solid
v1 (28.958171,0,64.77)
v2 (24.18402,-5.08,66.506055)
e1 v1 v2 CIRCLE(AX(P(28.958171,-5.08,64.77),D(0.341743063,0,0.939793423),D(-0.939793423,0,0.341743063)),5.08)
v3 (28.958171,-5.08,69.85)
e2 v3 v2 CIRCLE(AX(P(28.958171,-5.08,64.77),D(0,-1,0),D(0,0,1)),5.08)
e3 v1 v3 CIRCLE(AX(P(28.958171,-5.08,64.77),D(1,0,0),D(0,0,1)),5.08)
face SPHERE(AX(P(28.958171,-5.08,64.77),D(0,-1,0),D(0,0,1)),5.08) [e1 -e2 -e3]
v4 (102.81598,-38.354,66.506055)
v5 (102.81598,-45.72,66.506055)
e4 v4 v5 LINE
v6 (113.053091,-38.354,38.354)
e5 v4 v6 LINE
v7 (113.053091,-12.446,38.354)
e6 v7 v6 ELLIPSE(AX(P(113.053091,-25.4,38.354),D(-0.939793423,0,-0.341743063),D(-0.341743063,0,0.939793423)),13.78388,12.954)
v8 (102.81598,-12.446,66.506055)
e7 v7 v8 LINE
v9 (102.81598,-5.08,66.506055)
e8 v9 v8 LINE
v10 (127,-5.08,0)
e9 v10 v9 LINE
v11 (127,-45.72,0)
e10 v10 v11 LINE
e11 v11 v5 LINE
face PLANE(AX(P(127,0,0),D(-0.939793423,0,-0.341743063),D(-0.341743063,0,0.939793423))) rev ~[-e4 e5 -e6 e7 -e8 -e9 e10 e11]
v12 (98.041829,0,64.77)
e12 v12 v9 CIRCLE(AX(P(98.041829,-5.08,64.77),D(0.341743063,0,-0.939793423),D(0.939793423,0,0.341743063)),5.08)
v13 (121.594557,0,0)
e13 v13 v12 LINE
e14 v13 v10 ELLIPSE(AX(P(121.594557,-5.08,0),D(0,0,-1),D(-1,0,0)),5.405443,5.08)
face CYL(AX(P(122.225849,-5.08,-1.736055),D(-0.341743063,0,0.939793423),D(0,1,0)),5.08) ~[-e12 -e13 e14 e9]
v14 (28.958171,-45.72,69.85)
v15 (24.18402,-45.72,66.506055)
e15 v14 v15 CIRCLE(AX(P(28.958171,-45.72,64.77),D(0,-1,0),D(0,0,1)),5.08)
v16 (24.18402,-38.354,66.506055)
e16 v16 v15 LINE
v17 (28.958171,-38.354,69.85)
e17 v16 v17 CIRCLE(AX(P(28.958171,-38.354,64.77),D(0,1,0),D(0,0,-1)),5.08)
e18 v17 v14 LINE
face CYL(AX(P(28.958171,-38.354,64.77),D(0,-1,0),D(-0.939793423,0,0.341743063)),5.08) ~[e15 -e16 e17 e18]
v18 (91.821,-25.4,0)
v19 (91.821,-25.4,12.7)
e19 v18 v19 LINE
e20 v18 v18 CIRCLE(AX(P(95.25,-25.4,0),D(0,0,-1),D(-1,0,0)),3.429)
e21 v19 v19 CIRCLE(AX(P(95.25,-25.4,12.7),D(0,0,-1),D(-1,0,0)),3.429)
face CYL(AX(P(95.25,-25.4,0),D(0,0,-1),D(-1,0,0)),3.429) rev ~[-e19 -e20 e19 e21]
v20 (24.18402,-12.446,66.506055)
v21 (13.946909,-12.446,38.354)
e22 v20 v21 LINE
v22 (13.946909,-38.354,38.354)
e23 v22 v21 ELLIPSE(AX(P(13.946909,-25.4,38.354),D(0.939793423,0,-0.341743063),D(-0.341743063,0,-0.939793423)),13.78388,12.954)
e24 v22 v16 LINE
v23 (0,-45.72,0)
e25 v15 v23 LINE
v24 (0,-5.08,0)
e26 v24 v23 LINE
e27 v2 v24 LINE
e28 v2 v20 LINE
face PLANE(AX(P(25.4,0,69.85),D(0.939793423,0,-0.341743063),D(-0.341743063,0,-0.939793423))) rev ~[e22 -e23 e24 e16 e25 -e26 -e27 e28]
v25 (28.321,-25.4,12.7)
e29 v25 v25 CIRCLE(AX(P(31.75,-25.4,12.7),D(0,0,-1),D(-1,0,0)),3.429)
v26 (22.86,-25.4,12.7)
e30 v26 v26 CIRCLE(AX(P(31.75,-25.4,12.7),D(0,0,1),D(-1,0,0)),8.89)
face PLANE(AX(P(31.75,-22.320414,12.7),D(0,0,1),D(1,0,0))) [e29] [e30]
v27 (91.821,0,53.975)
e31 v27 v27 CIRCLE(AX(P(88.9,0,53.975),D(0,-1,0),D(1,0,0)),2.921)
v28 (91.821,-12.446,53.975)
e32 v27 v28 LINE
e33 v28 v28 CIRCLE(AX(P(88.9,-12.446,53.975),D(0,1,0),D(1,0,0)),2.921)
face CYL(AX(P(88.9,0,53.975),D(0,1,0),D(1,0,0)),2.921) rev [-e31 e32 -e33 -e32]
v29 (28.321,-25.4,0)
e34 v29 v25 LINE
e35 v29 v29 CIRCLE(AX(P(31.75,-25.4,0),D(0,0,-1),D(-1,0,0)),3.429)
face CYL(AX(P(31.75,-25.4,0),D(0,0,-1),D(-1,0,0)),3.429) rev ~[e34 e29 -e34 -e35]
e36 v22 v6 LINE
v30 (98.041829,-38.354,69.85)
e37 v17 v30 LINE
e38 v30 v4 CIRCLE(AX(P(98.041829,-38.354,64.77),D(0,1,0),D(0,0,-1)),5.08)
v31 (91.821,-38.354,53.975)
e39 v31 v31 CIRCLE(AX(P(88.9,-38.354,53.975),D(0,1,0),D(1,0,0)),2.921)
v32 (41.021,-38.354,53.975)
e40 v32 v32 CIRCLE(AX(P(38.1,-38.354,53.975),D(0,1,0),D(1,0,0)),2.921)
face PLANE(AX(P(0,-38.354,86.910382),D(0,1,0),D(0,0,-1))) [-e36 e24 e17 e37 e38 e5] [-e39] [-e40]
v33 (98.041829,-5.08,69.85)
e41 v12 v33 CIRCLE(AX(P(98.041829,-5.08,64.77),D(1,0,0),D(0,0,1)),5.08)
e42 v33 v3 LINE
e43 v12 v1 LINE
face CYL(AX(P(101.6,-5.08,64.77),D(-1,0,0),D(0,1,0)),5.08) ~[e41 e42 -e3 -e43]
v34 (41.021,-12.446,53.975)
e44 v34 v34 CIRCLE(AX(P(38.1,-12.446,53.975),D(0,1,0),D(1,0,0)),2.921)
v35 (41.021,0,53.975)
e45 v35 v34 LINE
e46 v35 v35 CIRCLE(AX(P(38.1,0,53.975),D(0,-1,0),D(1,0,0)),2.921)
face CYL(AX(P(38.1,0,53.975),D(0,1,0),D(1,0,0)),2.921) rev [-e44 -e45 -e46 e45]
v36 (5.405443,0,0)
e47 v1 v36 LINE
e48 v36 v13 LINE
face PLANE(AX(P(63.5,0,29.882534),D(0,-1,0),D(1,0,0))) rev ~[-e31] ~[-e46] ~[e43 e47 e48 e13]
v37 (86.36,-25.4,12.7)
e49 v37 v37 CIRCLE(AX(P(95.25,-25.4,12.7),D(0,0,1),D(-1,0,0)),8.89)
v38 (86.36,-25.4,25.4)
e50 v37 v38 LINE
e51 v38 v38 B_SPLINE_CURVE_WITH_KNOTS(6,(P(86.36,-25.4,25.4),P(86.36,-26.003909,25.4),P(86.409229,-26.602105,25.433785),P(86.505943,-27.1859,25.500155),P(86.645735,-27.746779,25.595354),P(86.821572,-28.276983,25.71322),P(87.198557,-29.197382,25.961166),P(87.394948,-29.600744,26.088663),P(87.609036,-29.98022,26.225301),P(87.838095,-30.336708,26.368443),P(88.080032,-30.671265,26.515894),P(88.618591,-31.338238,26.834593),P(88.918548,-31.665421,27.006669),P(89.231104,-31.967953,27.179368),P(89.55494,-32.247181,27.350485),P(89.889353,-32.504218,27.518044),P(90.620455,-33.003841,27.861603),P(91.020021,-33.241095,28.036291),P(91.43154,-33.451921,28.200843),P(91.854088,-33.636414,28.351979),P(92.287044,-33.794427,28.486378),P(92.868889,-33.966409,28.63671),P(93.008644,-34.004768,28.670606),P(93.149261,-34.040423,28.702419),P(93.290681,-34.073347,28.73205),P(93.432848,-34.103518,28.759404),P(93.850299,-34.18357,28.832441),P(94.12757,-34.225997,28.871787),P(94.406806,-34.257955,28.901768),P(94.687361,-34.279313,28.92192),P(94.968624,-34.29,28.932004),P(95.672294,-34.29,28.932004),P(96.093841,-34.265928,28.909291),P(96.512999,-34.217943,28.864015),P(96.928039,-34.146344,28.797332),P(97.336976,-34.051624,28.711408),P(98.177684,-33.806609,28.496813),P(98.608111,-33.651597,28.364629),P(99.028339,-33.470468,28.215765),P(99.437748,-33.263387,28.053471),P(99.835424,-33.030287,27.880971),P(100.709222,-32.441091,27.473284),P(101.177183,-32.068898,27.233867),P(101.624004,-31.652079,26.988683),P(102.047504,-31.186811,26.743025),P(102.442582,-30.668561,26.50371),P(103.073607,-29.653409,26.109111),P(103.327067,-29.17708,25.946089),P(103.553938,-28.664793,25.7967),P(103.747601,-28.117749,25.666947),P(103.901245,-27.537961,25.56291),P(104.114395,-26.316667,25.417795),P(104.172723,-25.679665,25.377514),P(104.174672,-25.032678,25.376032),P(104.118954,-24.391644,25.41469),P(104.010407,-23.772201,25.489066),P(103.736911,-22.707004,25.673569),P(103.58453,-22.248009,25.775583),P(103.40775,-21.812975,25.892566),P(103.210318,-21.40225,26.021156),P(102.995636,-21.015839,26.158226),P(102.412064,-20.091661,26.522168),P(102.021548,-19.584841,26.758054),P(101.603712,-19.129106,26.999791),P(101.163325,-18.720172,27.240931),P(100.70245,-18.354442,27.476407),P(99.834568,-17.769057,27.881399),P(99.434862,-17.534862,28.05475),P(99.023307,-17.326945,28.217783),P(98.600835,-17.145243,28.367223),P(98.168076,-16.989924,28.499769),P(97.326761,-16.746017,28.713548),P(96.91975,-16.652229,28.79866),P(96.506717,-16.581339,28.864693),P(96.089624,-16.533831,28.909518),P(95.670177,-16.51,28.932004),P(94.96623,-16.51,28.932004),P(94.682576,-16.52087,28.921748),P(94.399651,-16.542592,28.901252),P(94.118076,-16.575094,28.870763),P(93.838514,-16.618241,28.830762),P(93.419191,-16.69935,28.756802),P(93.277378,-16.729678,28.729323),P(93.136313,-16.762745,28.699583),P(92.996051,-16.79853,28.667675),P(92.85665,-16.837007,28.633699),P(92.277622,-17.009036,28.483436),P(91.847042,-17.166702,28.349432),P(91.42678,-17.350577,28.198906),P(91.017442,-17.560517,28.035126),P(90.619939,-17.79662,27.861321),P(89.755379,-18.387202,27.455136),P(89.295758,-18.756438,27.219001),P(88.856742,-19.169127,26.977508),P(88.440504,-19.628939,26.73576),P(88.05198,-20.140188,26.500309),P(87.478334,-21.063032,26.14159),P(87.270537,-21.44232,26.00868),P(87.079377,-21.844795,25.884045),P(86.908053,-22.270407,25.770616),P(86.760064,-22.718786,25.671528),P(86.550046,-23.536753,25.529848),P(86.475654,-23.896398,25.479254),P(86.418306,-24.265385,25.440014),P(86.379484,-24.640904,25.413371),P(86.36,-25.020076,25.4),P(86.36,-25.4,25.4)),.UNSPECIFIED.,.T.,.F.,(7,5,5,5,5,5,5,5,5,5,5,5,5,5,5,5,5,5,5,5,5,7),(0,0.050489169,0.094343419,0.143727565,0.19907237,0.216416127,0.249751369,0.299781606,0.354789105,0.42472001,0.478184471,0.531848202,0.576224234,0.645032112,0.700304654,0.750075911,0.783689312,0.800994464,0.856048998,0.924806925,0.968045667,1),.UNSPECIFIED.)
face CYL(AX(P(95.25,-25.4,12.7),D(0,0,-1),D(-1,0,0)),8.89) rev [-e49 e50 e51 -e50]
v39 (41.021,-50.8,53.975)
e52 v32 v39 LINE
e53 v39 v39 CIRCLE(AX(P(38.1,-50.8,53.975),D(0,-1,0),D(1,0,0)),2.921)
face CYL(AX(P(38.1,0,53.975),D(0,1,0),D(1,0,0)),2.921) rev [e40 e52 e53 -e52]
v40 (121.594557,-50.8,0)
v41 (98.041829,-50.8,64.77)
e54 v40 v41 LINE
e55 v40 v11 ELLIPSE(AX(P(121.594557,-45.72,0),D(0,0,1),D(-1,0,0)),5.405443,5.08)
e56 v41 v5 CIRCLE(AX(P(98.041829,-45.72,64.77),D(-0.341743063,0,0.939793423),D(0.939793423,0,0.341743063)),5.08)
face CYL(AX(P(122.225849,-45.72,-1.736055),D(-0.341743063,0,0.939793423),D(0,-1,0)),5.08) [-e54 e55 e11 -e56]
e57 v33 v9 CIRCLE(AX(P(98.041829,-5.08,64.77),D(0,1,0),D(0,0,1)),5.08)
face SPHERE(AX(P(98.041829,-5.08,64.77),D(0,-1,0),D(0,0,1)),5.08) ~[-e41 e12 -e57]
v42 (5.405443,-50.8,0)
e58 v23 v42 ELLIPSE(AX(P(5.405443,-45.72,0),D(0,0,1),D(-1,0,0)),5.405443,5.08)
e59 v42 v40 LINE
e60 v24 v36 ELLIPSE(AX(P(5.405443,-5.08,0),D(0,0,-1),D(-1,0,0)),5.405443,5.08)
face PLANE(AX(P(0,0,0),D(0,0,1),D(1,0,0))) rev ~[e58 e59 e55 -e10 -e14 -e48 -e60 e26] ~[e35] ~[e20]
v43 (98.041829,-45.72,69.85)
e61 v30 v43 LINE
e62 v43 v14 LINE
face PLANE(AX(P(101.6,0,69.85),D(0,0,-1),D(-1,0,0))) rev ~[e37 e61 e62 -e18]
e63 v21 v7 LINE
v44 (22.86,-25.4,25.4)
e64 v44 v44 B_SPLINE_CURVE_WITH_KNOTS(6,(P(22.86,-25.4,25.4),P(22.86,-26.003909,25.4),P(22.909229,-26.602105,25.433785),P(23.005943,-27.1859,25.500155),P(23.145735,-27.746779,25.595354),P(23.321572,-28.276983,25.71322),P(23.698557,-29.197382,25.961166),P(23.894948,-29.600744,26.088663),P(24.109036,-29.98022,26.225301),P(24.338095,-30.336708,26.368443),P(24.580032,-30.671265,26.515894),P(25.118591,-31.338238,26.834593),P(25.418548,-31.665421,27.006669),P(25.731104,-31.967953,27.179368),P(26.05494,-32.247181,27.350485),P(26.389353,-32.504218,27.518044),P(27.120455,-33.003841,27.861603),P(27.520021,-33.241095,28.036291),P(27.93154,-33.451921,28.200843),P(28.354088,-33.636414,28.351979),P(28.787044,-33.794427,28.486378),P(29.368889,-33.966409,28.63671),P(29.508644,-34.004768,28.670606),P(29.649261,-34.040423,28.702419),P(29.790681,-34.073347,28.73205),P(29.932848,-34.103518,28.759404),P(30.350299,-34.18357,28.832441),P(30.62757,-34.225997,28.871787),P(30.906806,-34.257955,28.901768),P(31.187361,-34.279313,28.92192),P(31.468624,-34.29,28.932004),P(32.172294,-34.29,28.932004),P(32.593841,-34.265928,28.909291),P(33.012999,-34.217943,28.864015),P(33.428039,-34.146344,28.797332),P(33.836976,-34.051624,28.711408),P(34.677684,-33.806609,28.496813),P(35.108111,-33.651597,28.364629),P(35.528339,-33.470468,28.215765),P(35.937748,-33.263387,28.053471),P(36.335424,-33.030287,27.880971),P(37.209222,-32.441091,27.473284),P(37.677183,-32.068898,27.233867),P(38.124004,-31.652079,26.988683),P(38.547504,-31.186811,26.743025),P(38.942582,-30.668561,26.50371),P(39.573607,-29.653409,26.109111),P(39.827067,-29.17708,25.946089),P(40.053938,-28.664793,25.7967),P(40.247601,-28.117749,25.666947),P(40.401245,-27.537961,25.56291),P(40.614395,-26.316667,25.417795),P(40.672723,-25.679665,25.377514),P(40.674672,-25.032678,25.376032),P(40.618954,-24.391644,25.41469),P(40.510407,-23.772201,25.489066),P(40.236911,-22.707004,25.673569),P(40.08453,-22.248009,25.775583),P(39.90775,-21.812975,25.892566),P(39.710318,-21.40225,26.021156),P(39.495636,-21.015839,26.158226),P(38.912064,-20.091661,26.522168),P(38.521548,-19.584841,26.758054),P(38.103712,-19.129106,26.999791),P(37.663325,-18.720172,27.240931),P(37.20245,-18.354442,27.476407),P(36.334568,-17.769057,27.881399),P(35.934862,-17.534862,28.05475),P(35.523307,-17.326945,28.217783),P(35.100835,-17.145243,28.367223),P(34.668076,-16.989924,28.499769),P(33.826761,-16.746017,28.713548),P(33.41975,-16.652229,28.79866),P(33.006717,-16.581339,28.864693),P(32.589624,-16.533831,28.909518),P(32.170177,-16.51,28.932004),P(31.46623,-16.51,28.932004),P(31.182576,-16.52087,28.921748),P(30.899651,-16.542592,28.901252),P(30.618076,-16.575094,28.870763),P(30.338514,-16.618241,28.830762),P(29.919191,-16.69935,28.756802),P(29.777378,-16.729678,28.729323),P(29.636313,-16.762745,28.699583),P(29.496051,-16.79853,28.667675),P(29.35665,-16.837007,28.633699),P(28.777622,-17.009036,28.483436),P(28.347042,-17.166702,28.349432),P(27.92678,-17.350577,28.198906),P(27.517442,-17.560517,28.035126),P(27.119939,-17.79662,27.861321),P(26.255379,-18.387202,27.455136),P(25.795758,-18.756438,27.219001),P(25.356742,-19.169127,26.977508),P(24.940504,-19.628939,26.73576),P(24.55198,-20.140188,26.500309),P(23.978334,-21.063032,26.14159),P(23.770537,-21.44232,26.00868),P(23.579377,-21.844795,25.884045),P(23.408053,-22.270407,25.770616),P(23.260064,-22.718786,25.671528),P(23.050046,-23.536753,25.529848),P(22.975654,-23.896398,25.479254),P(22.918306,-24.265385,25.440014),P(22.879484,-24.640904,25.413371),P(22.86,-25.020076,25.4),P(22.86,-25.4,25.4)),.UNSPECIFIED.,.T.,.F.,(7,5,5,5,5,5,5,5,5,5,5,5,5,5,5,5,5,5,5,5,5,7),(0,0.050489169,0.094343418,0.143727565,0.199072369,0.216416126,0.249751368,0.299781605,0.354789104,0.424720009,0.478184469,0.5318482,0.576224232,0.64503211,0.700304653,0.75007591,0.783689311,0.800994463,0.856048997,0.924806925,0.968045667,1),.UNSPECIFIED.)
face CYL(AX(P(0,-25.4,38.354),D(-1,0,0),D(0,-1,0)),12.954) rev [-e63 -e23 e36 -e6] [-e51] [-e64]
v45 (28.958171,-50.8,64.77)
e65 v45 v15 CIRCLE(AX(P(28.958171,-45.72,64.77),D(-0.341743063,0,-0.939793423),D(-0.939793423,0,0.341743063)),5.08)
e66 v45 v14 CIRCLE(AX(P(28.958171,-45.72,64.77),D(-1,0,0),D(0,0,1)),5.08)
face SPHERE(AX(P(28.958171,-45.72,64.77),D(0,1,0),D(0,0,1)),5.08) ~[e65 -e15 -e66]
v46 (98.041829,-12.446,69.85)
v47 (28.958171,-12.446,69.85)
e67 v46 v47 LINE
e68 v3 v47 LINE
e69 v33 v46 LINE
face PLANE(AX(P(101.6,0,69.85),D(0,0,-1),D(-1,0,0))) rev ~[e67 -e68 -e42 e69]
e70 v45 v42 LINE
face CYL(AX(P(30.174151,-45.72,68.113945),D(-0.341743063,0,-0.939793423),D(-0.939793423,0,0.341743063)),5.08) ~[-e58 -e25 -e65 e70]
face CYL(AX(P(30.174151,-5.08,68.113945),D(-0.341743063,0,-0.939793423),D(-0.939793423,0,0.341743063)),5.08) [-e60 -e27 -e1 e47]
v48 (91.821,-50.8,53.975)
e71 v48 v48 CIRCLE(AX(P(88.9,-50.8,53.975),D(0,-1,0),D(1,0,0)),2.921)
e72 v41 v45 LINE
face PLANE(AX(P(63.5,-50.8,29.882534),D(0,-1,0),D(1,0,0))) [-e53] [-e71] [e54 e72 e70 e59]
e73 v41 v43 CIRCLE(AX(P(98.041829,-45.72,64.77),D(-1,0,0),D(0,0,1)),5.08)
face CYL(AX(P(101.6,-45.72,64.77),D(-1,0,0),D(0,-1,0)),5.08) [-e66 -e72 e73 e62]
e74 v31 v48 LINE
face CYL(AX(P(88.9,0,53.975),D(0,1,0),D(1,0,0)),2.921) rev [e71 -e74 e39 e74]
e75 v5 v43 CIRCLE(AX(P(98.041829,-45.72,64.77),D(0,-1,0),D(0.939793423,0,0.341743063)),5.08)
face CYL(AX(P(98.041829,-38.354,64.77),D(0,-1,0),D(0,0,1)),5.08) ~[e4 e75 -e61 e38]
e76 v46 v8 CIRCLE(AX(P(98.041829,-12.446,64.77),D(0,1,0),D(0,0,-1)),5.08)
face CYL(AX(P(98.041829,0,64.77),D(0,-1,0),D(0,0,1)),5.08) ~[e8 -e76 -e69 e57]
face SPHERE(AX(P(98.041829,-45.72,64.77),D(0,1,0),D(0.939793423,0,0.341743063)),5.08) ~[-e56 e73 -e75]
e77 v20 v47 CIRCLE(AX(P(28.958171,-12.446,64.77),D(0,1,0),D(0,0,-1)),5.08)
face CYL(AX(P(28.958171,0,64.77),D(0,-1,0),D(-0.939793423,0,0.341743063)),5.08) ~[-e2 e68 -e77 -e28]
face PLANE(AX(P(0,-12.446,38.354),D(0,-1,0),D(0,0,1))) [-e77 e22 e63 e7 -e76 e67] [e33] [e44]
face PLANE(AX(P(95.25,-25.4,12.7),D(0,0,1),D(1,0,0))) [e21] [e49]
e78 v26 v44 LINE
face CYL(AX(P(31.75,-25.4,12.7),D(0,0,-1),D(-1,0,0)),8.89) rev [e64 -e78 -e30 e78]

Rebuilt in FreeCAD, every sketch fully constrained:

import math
import FreeCAD as App
import Part
import Sketcher

V = App.Vector
Q = App.Units.Quantity


def edges_at(feature, points):
    """Names of the edges that pass closest to the given points."""
    edges = feature.Shape.Edges
    near = lambda p: min(range(len(edges)), key=lambda i: edges[i].distToShape(Part.Vertex(*p))[0])
    return sorted({f"Edge{near(p) + 1}" for p in points})


def add_polygon(sketch, points):
    """Adds a closed chain of lines whose ends are joined by coincident constraints."""
    first, n = sketch.GeometryCount, len(points)
    for a, b in zip(points, points[1:] + points[:1]):
        sketch.addGeometry(Part.LineSegment(App.Vector(*a, 0), App.Vector(*b, 0)), False)
    for i in range(n):
        sketch.addConstraint(Sketcher.Constraint("Coincident", first + i, 2, first + (i + 1) % n, 1))

doc = App.newDocument("Part")
params = doc.addObject("Spreadsheet::Sheet", "Params")
for row, (alias, value) in enumerate([
    ("sketch1_diameter", "0.23 in"),
    ("sketch1_width", "5 in"),
    ("sketch1_width2", "3 in"),
    ("pad1_length", "2 in"),
    ("sketch2_radius", "0.51 in"),
    ("pocket1_length", "10.97 in"),
    ("fillet_radius", "0.2 in"),
    ("sketch3_diameter", "0.27 in"),
    ("pocket2_length", "3.13 in"),
    ("sketch4_diameter", "0.7 in"),
    ("pocket3_length", "2.68 in"),
], start=1):
    params.set(f"A{row}", alias)
    params.set(f"B{row}", "=" + value)
    params.setAlias(f"B{row}", alias)

body = doc.addObject("PartDesign::Body", "Body")

# Sketch on XZ plane
sketch1 = doc.addObject("Sketcher::SketchObject", "Sketch")
body.addObject(sketch1)
sketch1.AttachmentSupport = (doc.XZ_Plane, [""])
sketch1.MapMode = "FlatFace"
add_polygon(sketch1, [(25.4, 69.8), (0, 0), (127, 0), (101.6, 69.8)])  # lines 0-3
sketch1.addGeometry(Part.Circle(V(38.1, 54, 0), V(0, 0, 1), 2.9), False)  # 4
sketch1.addGeometry(Part.Circle(V(88.9, 54, 0), V(0, 0, 1), 2.9), False)  # 5
sketch1.addConstraint([
    Sketcher.Constraint("Horizontal", 1),
    Sketcher.Constraint("Horizontal", 3),
    Sketcher.Constraint("Coincident", 0, 2, -1, 1),
    Sketcher.Constraint("Equal", 4, 5),
    Sketcher.Constraint("Horizontal", 4, 3, 5, 3),
    Sketcher.Constraint("Equal", 0, 2),
    Sketcher.Constraint("Diameter", 4, Q("0.23 in")),
    Sketcher.Constraint("DistanceX", 1, 1, 1, 2, Q("5 in")),
    Sketcher.Constraint("DistanceX", 3, 2, 3, 1, Q("3 in")),
    Sketcher.Constraint("DistanceX", 4, 3, 5, 3, Q("2 in")),
    Sketcher.Constraint("DistanceX", -1, 1, 4, 3, Q("1.5 in")),
    Sketcher.Constraint("DistanceY", -1, 1, 2, 2, Q("2.75 in")),
    Sketcher.Constraint("DistanceY", -1, 1, 4, 3, Q("2.125 in")),
])
sketch1.setExpression("Constraints[10]", "Params.sketch1_diameter")
sketch1.setExpression("Constraints[11]", "Params.sketch1_width")
sketch1.setExpression("Constraints[12]", "Params.sketch1_width2")
pad1 = doc.addObject("PartDesign::Pad", "Pad")
body.addObject(pad1)
pad1.Profile = sketch1
pad1.setExpression("Length", "Params.pad1_length")

# Sketch on YZ plane
sketch2 = doc.addObject("Sketcher::SketchObject", "Sketch001")
body.addObject(sketch2)
sketch2.AttachmentSupport = (doc.YZ_Plane, [""])
sketch2.MapMode = "FlatFace"
sketch2.addGeometry([
    Part.LineSegment(V(-38, 87, 0), V(-38, 38, 0)),
    Part.ArcOfCircle(Part.Circle(V(-25, 38, 0), V(0, 0, 1), 13), math.radians(180), math.radians(360)),
    Part.LineSegment(V(-12, 38, 0), V(-12, 88, 0)),
    Part.LineSegment(V(-12, 88, 0), V(-38, 87, 0)),
], False)
sketch2.addConstraint([
    Sketcher.Constraint("Tangent", 0, 2, 1, 1),
    Sketcher.Constraint("Tangent", 1, 2, 2, 1),
    Sketcher.Constraint("Coincident", 2, 2, 3, 1),
    Sketcher.Constraint("Coincident", 3, 2, 0, 1),
    Sketcher.Constraint("Vertical", 0),
    Sketcher.Constraint("Vertical", 2),
    Sketcher.Constraint("Radius", 1, Q("0.51 in")),
    Sketcher.Constraint("DistanceX", 1, 3, -1, 1, Q("1 in")),
    Sketcher.Constraint("DistanceY", -1, 1, 1, 3, Q("1.51 in")),
    Sketcher.Constraint("DistanceY", 2, 1, 2, 2, 49.882041),
    Sketcher.Constraint("DistanceY", 0, 2, 0, 1, 48.556382),
])
sketch2.setExpression("Constraints[6]", "Params.sketch2_radius")
pocket1 = doc.addObject("PartDesign::Pocket", "Pocket")
body.addObject(pocket1)
pocket1.Profile = sketch2
pocket1.setExpression("Length", "Params.pocket1_length")
pocket1.Reversed = True
doc.recompute()

fillet = doc.addObject("PartDesign::Fillet", "Fillet")
body.addObject(fillet)
fillet.Base = (pocket1, edges_at(pocket1, [
    (114.3, -50.8, 34.925),
    (63.5, -50.8, 69.85),
    (12.7, -50.8, 34.925),
    (101.6, -44.577, 69.85),
    (101.6, -6.223, 69.85),
    (25.4, -44.577, 69.85),
    (25.4, -6.223, 69.85),
    (63.5, 0, 69.85),
    (114.3, 0, 34.925),
    (12.7, 0, 34.925),
]))
fillet.setExpression("Radius", "Params.fillet_radius")

# Sketch on XY plane
sketch3 = doc.addObject("Sketcher::SketchObject", "Sketch002")
body.addObject(sketch3)
sketch3.AttachmentSupport = (doc.XY_Plane, [""])
sketch3.MapMode = "FlatFace"
sketch3.addGeometry([
    Part.Circle(V(31.8, -25.4, 0), V(0, 0, 1), 3.4),
    Part.Circle(V(95.2, -25.4, 0), V(0, 0, 1), 3.4),
], False)
sketch3.addConstraint([
    Sketcher.Constraint("Equal", 0, 1),
    Sketcher.Constraint("Horizontal", 0, 3, 1, 3),
    Sketcher.Constraint("Diameter", 0, Q("0.27 in")),
    Sketcher.Constraint("DistanceY", 0, 3, -1, 1, Q("1 in")),
    Sketcher.Constraint("DistanceX", 0, 3, 1, 3, Q("2.5 in")),
    Sketcher.Constraint("DistanceX", -1, 1, 0, 3, Q("1.25 in")),
])
sketch3.setExpression("Constraints[2]", "Params.sketch3_diameter")
pocket2 = doc.addObject("PartDesign::Pocket", "Pocket001")
body.addObject(pocket2)
pocket2.Profile = sketch3
pocket2.setExpression("Length", "Params.pocket2_length")
pocket2.Reversed = True

# Sketch on XY plane
sketch4 = doc.addObject("Sketcher::SketchObject", "Sketch003")
body.addObject(sketch4)
sketch4.AttachmentSupport = (doc.XY_Plane, [""])
sketch4.MapMode = "FlatFace"
sketch4.AttachmentOffset = App.Placement(V(0, 0, 0.5 * 25.4), App.Rotation())
sketch4.addGeometry([
    Part.Circle(V(32, -25, 0), V(0, 0, 1), 9),
    Part.Circle(V(95, -25, 0), V(0, 0, 1), 9),
], False)
sketch4.addConstraint([
    Sketcher.Constraint("Equal", 0, 1),
    Sketcher.Constraint("Horizontal", 0, 3, 1, 3),
    Sketcher.Constraint("Diameter", 0, Q("0.7 in")),
    Sketcher.Constraint("DistanceY", 0, 3, -1, 1, Q("1 in")),
    Sketcher.Constraint("DistanceX", 0, 3, 1, 3, Q("2.5 in")),
    Sketcher.Constraint("DistanceX", -1, 1, 0, 3, Q("1.25 in")),
])
sketch4.setExpression("Constraints[2]", "Params.sketch4_diameter")
pocket3 = doc.addObject("PartDesign::Pocket", "Pocket002")
body.addObject(pocket3)
pocket3.Profile = sketch4
pocket3.setExpression("Length", "Params.pocket3_length")
pocket3.Reversed = True

doc.recompute()
